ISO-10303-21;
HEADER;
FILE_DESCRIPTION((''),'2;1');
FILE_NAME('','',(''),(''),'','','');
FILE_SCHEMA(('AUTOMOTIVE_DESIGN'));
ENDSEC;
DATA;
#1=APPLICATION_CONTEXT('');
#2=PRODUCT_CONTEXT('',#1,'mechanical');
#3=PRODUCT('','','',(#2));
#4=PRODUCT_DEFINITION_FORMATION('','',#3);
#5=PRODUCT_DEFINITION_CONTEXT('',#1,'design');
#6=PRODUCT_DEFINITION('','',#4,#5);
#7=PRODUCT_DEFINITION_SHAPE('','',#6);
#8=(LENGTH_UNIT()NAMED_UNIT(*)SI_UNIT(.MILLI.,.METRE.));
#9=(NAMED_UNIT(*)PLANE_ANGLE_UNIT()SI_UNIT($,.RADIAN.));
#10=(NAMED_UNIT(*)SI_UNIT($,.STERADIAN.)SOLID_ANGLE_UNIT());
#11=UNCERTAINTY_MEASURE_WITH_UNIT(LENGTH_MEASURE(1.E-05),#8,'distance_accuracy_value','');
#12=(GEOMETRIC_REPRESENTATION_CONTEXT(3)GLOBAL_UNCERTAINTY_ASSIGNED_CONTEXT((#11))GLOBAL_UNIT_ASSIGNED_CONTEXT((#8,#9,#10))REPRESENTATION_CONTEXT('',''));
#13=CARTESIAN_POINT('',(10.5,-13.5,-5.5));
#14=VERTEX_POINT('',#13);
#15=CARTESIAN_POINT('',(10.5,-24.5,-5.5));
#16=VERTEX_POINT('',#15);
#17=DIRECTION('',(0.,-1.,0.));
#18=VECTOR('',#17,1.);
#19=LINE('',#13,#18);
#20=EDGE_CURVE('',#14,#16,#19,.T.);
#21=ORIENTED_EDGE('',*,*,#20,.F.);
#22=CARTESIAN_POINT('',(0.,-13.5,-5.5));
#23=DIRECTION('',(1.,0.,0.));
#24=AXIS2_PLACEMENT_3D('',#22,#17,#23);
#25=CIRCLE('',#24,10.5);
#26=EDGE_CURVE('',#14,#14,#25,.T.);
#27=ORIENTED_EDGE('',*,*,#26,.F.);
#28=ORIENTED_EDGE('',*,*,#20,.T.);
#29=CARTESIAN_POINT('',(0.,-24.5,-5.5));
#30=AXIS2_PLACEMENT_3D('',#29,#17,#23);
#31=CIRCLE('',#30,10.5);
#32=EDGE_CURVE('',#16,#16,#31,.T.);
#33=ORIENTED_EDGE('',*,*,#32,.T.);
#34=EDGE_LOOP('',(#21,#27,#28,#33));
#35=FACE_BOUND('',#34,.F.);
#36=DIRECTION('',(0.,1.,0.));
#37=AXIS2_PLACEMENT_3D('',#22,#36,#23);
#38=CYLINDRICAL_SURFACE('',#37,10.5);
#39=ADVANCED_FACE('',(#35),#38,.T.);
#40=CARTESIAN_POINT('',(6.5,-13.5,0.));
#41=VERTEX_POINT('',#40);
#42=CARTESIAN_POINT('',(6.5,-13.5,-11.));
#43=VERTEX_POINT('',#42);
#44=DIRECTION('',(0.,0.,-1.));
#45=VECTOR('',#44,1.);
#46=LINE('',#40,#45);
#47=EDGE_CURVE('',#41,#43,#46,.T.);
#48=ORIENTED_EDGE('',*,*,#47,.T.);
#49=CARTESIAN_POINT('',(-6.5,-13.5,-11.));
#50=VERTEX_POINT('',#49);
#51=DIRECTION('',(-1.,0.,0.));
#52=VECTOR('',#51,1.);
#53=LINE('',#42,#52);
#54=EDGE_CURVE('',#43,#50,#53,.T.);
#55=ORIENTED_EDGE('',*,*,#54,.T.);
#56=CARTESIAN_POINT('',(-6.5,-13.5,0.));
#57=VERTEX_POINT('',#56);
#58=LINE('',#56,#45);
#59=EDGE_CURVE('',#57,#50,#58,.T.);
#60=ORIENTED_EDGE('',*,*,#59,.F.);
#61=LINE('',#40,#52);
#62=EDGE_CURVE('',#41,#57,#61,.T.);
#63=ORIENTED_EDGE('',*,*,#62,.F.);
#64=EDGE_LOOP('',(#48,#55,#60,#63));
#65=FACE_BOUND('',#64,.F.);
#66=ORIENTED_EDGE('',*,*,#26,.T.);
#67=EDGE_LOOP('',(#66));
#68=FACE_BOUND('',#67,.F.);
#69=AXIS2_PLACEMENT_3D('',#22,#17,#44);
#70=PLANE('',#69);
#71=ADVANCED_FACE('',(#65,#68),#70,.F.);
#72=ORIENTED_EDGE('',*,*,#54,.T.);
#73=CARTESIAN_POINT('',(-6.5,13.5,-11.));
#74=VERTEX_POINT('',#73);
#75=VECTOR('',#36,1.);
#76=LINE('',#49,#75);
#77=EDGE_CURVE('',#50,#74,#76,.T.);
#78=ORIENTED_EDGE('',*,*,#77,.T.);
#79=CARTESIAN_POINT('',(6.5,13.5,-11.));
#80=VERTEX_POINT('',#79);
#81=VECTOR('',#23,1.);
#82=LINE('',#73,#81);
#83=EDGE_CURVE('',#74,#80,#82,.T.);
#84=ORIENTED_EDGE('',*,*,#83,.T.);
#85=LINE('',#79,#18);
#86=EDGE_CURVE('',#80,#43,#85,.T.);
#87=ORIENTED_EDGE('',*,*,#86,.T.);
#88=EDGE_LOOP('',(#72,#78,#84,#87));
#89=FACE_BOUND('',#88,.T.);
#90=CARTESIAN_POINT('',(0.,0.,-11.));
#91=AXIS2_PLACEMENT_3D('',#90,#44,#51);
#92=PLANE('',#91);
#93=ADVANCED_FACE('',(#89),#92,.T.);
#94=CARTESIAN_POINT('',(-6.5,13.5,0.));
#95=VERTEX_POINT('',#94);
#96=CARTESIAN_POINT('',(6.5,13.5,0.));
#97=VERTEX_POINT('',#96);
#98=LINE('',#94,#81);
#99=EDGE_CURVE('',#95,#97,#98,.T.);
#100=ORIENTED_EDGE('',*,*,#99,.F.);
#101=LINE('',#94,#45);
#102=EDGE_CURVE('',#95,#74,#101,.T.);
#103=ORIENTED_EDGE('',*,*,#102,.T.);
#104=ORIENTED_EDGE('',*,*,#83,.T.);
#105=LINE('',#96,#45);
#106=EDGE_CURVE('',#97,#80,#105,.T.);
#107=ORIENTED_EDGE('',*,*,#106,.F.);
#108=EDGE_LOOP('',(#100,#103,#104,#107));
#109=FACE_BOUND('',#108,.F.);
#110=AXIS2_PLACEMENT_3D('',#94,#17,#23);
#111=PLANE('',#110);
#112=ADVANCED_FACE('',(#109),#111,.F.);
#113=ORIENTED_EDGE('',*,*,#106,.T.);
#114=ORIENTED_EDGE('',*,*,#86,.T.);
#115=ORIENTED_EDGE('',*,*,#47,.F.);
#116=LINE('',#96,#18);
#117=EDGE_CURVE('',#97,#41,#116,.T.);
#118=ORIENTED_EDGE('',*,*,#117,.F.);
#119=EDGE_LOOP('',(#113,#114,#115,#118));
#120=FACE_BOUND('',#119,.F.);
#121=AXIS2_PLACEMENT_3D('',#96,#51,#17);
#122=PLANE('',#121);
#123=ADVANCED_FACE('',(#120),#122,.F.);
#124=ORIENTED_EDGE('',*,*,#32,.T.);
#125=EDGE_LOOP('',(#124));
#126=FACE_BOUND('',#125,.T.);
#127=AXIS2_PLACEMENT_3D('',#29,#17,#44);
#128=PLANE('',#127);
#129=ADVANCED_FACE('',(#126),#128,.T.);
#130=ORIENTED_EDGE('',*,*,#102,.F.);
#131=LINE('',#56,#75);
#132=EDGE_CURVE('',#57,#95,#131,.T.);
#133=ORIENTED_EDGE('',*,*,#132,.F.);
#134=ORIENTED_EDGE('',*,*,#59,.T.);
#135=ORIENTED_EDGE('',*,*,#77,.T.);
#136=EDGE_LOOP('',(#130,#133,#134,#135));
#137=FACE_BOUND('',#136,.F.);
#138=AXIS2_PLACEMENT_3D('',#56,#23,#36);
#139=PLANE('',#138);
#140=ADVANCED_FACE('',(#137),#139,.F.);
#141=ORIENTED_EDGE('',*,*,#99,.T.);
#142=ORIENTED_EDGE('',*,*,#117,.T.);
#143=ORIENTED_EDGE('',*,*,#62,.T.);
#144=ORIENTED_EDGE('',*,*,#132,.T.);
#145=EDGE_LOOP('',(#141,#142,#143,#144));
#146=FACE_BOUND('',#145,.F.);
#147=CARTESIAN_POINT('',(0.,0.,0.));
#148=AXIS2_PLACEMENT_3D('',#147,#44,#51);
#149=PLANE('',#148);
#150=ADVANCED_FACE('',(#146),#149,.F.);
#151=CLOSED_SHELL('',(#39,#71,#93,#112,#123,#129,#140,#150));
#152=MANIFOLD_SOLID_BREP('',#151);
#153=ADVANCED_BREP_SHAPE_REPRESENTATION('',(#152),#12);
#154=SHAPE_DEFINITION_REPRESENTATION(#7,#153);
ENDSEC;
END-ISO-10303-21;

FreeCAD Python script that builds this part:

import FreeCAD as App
import Part
import Sketcher
from FreeCAD import Vector

doc = App.newDocument("Part")
body = doc.addObject("PartDesign::Body", "Body")

# Sketch on XY plane
sketch1 = body.newObject("Sketcher::SketchObject", "Sketch")
sketch1.AttachmentSupport = (doc.getObject("XY_Plane"), [""])
sketch1.MapMode = "FlatFace"
sketch1.addGeometry([
    Part.LineSegment(Vector(-6, -14, 0), Vector(6, -14, 0)),
    Part.LineSegment(Vector(6, -14, 0), Vector(6, 14, 0)),
    Part.LineSegment(Vector(6, 14, 0), Vector(-6, 14, 0)),
    Part.LineSegment(Vector(-6, 14, 0), Vector(-6, -14, 0)),
], False)
sketch1.addConstraint([
    Sketcher.Constraint("Coincident", 0, 2, 1, 1),
    Sketcher.Constraint("Coincident", 1, 2, 2, 1),
    Sketcher.Constraint("Coincident", 2, 2, 3, 1),
    Sketcher.Constraint("Coincident", 3, 2, 0, 1),
    Sketcher.Constraint("Horizontal", 0),
    Sketcher.Constraint("Vertical", 1),
    Sketcher.Constraint("Horizontal", 2),
    Sketcher.Constraint("Vertical", 3),
    Sketcher.Constraint("Symmetric", 0, 2, 2, 2, -1, 1),
    Sketcher.Constraint("DistanceX", -1, 1, 0, 2, 6.5),
    Sketcher.Constraint("DistanceY", 1, 1, 1, 2, 27.0),
])
pad1 = body.newObject("PartDesign::Pad", "Pad")
pad1.Profile = sketch1
pad1.Length = 11
pad1.Reversed = True

# Sketch on XZ plane
sketch2 = body.newObject("Sketcher::SketchObject", "Sketch001")
sketch2.AttachmentSupport = (doc.getObject("XZ_Plane"), [""])
sketch2.MapMode = "FlatFace"
sketch2.AttachmentOffset = App.Placement(Vector(0, 0, 13.5), App.Rotation())
sketch2.addGeometry(Part.Circle(Vector(0, -6, 0), Vector(0, 0, 1), 10), False)
sketch2.addConstraint([
    Sketcher.Constraint("PointOnObject", 0, 3, -2),
    Sketcher.Constraint("Diameter", 0, 21.0),
    Sketcher.Constraint("DistanceY", 0, 3, -1, 1, 5.5),
])
pad2 = body.newObject("PartDesign::Pad", "Pad001")
pad2.Profile = sketch2
pad2.Length = 11

doc.recompute()
